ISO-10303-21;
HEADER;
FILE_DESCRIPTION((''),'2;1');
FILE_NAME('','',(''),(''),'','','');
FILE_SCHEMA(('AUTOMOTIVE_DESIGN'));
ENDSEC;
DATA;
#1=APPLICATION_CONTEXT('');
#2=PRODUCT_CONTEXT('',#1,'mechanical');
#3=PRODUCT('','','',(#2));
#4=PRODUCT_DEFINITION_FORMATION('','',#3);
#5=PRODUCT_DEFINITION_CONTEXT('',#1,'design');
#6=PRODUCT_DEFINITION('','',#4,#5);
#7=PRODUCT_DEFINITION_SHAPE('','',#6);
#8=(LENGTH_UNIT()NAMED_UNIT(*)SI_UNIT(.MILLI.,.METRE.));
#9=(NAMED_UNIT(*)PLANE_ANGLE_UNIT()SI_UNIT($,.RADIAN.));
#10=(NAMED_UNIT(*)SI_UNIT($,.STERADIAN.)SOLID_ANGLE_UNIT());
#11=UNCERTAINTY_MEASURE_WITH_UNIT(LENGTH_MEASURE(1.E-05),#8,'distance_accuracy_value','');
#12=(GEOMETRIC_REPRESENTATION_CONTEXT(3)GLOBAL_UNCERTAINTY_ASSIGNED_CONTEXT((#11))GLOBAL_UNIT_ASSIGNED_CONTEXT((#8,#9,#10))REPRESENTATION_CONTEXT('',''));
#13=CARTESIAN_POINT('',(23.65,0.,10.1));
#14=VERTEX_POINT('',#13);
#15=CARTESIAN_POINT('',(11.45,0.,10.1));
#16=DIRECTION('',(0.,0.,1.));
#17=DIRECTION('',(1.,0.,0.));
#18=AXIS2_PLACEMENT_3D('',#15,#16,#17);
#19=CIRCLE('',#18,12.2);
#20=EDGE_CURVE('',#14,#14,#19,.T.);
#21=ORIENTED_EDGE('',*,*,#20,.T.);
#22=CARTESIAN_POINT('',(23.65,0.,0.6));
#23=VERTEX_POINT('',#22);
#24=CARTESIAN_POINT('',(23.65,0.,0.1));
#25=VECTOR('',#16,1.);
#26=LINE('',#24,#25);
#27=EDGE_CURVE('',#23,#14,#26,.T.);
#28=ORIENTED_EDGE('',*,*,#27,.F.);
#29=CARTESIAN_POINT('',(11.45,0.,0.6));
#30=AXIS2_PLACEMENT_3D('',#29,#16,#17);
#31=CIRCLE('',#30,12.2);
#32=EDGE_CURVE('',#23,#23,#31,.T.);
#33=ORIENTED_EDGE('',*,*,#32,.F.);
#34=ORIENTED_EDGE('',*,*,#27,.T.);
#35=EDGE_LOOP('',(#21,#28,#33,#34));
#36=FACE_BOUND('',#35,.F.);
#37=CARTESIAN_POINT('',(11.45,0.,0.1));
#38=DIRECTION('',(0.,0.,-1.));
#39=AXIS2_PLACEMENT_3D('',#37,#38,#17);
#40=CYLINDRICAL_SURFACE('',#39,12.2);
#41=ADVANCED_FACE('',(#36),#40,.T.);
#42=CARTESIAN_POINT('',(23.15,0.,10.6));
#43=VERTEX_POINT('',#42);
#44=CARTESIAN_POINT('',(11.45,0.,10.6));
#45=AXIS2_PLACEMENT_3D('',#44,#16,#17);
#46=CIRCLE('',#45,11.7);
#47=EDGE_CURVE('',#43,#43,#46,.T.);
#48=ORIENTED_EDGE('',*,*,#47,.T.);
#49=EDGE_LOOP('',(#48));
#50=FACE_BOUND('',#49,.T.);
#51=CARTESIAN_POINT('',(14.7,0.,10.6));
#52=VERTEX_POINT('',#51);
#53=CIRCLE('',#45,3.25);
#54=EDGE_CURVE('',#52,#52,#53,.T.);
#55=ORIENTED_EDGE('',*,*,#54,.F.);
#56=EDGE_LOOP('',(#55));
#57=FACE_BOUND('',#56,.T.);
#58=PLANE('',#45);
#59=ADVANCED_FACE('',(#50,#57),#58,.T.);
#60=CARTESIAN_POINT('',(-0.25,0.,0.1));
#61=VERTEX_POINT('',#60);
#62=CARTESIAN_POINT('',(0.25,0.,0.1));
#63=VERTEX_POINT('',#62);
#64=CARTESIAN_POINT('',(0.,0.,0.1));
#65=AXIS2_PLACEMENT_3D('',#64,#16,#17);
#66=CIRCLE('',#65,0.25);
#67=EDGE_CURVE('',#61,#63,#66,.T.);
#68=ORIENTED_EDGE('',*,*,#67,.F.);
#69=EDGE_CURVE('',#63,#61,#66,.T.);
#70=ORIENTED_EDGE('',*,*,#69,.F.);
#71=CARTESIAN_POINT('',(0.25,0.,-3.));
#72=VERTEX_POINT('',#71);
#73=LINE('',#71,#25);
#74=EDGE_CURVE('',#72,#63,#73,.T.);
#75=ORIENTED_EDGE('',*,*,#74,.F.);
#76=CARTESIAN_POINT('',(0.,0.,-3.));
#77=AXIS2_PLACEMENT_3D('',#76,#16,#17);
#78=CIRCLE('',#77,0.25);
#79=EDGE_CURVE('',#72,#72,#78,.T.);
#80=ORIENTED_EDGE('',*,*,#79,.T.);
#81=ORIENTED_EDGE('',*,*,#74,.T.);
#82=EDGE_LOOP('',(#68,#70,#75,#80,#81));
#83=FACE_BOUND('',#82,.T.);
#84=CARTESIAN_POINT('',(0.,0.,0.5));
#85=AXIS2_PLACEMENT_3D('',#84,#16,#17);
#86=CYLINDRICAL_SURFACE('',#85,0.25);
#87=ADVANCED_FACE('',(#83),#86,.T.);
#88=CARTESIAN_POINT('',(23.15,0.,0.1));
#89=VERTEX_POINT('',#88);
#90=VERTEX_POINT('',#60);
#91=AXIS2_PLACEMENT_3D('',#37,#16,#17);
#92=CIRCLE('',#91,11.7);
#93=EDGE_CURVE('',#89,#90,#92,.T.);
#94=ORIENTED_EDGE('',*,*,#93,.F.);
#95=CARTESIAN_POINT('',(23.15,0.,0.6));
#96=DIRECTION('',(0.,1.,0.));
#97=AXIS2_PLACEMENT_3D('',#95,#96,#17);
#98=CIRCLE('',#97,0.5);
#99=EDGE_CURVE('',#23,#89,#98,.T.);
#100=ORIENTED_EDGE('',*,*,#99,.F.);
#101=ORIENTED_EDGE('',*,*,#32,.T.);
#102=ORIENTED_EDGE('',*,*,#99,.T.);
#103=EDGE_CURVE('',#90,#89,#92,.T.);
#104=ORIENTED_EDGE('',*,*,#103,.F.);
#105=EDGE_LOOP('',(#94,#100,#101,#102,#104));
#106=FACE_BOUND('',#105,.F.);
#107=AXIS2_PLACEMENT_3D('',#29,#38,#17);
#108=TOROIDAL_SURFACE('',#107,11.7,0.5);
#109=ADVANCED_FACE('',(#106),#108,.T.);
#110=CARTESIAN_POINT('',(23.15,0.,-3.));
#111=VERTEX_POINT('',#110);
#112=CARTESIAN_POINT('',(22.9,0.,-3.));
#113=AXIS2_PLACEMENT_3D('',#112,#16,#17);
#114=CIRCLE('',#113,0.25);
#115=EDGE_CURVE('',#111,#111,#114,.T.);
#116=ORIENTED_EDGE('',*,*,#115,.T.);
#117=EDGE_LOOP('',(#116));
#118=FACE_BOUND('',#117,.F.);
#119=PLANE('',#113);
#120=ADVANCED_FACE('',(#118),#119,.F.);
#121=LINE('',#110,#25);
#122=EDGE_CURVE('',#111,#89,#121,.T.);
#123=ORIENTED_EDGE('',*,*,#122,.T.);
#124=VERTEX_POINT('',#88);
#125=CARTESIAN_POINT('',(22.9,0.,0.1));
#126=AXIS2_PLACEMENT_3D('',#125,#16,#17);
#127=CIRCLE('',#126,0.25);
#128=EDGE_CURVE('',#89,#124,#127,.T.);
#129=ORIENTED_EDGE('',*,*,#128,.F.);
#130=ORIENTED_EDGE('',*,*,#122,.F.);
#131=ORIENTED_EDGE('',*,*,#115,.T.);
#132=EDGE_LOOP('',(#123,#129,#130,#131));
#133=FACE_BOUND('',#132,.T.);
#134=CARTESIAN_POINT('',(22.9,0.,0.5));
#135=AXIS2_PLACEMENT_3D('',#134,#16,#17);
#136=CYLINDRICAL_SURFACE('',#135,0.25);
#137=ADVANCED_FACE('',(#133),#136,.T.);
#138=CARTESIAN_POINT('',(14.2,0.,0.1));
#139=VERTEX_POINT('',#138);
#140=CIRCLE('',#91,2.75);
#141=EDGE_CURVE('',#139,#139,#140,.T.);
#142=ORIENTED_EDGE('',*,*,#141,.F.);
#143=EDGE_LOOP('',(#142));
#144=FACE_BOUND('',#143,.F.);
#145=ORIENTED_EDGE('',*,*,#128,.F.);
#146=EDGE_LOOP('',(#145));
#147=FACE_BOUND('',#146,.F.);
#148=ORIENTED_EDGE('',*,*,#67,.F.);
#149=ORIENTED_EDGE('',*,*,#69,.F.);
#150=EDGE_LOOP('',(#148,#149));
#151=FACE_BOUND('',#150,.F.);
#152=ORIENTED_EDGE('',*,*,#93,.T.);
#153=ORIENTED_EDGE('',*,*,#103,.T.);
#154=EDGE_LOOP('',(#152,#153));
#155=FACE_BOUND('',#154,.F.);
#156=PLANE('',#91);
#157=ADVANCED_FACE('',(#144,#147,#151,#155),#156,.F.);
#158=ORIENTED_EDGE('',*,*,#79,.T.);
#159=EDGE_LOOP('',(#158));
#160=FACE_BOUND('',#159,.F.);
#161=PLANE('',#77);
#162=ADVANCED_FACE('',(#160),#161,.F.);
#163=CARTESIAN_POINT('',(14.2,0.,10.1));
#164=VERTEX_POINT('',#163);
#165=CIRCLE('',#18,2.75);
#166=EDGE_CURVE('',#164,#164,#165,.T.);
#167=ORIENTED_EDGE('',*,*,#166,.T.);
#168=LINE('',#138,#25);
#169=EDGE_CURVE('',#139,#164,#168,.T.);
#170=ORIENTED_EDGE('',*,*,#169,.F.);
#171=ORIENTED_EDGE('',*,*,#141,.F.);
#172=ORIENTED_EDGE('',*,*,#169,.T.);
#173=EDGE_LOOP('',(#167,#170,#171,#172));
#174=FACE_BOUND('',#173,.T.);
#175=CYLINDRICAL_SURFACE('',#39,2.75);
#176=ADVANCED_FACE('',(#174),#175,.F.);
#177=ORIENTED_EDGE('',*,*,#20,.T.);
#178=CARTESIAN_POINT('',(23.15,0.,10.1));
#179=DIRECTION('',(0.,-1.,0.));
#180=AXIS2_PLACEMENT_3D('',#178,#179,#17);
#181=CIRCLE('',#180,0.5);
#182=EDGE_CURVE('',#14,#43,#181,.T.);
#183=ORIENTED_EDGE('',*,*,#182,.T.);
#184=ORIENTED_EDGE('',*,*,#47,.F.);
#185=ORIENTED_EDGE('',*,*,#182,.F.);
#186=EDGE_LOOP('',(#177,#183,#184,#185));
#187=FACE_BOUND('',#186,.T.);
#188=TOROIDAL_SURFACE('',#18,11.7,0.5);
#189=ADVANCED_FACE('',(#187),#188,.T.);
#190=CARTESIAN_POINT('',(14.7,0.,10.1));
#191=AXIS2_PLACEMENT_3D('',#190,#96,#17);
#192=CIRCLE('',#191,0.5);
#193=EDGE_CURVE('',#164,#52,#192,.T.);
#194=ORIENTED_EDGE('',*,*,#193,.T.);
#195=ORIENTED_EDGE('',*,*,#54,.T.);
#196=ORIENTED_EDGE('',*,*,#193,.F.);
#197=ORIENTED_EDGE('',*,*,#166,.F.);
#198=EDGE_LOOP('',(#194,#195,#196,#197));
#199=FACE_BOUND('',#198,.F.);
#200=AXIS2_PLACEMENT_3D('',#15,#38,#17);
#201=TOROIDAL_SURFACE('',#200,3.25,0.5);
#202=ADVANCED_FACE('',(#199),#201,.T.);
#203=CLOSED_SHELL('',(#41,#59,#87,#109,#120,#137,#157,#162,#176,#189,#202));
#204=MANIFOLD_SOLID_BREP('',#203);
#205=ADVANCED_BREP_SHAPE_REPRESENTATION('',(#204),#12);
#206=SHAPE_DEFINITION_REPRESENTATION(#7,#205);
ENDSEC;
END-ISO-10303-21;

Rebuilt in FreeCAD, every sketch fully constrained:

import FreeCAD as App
import Part
import Sketcher
from FreeCAD import Vector
Q = App.Units.Quantity


def edges_at(feature, points):
    """Names of the edges that pass closest to the given points."""
    edges = feature.Shape.Edges
    near = lambda p: min(range(len(edges)), key=lambda i: edges[i].distToShape(Part.Vertex(*p))[0])
    return sorted({f"Edge{near(p) + 1}" for p in points})

doc = App.newDocument("Part")
body = doc.addObject("PartDesign::Body", "Body")
body.AllowCompound = True

sketch1 = doc.addObject("Sketcher::SketchObject", "Sketch")
body.addObject(sketch1)
sketch1.AttachmentSupport = (doc.XY_Plane, [""])
sketch1.MapMode = "FlatFace"
sketch1.AttachmentOffset = App.Placement(Vector(0, 0, 0.5), App.Rotation())
sketch1.addGeometry([
    Part.Circle(Vector(0, 0, 0), Vector(0, 0, 1), 0.25),
    Part.Circle(Vector(22.9, 0, 0), Vector(0, 0, 1), 0.25),
], False)
sketch1.addConstraint([
    Sketcher.Constraint("Coincident", 0, 3, -1, 1),
    Sketcher.Constraint("Equal", 0, 1),
    Sketcher.Constraint("PointOnObject", 1, 3, -1),
    Sketcher.Constraint("Diameter", 0, Q("0.5 mm")),
    Sketcher.Constraint("DistanceX", -1, 1, 1, 3, Q("22.9 mm")),
])
pad1 = doc.addObject("PartDesign::Pad", "Pad")
body.addObject(pad1)
pad1.Profile = sketch1
pad1.Type = "TwoLengths"
pad1.Length = 5.25
pad1.Length2 = 3.5
body2 = doc.addObject("PartDesign::Body", "Body001")

sketch2 = doc.addObject("Sketcher::SketchObject", "Sketch001")
body2.addObject(sketch2)
sketch2.AttachmentSupport = (doc.getObject("XY_Plane001"), [""])
sketch2.MapMode = "FlatFace"
sketch2.AttachmentOffset = App.Placement(Vector(0, 0, 0.1), App.Rotation())
sketch2.addGeometry([
    Part.Circle(Vector(11.4, 0, 0), Vector(0, 0, 1), 12.2),
    Part.Circle(Vector(11.4, 0, 0), Vector(0, 0, 1), 2.8),
], False)
sketch2.addConstraint([
    Sketcher.Constraint("Coincident", 1, 3, 0, 3),
    Sketcher.Constraint("PointOnObject", 0, 3, -1),
    Sketcher.Constraint("Diameter", 0, Q("24.4 mm")),
    Sketcher.Constraint("Diameter", 1, Q("5.5 mm")),
    Sketcher.Constraint("DistanceX", -1, 1, 0, 3, Q("11.45 mm")),
])
pad2 = doc.addObject("PartDesign::Pad", "Pad001")
body2.addObject(pad2)
pad2.Profile = sketch2
pad2.Length = 10.5
doc.recompute()

fillet = doc.addObject("PartDesign::Fillet", "Fillet")
body2.addObject(fillet)
fillet.Base = (pad2, edges_at(pad2, [(8.7, 0, 10.6), (-0.75, 0, 10.6), (-0.75, 0, 0.1)]))
fillet.Radius = 0.5
doc.recompute()

boolean = doc.addObject("PartDesign::Boolean", "Boolean")
body2.addObject(boolean)
boolean.Type = "Fuse"
boolean.addObjects([body])

doc.recompute()
